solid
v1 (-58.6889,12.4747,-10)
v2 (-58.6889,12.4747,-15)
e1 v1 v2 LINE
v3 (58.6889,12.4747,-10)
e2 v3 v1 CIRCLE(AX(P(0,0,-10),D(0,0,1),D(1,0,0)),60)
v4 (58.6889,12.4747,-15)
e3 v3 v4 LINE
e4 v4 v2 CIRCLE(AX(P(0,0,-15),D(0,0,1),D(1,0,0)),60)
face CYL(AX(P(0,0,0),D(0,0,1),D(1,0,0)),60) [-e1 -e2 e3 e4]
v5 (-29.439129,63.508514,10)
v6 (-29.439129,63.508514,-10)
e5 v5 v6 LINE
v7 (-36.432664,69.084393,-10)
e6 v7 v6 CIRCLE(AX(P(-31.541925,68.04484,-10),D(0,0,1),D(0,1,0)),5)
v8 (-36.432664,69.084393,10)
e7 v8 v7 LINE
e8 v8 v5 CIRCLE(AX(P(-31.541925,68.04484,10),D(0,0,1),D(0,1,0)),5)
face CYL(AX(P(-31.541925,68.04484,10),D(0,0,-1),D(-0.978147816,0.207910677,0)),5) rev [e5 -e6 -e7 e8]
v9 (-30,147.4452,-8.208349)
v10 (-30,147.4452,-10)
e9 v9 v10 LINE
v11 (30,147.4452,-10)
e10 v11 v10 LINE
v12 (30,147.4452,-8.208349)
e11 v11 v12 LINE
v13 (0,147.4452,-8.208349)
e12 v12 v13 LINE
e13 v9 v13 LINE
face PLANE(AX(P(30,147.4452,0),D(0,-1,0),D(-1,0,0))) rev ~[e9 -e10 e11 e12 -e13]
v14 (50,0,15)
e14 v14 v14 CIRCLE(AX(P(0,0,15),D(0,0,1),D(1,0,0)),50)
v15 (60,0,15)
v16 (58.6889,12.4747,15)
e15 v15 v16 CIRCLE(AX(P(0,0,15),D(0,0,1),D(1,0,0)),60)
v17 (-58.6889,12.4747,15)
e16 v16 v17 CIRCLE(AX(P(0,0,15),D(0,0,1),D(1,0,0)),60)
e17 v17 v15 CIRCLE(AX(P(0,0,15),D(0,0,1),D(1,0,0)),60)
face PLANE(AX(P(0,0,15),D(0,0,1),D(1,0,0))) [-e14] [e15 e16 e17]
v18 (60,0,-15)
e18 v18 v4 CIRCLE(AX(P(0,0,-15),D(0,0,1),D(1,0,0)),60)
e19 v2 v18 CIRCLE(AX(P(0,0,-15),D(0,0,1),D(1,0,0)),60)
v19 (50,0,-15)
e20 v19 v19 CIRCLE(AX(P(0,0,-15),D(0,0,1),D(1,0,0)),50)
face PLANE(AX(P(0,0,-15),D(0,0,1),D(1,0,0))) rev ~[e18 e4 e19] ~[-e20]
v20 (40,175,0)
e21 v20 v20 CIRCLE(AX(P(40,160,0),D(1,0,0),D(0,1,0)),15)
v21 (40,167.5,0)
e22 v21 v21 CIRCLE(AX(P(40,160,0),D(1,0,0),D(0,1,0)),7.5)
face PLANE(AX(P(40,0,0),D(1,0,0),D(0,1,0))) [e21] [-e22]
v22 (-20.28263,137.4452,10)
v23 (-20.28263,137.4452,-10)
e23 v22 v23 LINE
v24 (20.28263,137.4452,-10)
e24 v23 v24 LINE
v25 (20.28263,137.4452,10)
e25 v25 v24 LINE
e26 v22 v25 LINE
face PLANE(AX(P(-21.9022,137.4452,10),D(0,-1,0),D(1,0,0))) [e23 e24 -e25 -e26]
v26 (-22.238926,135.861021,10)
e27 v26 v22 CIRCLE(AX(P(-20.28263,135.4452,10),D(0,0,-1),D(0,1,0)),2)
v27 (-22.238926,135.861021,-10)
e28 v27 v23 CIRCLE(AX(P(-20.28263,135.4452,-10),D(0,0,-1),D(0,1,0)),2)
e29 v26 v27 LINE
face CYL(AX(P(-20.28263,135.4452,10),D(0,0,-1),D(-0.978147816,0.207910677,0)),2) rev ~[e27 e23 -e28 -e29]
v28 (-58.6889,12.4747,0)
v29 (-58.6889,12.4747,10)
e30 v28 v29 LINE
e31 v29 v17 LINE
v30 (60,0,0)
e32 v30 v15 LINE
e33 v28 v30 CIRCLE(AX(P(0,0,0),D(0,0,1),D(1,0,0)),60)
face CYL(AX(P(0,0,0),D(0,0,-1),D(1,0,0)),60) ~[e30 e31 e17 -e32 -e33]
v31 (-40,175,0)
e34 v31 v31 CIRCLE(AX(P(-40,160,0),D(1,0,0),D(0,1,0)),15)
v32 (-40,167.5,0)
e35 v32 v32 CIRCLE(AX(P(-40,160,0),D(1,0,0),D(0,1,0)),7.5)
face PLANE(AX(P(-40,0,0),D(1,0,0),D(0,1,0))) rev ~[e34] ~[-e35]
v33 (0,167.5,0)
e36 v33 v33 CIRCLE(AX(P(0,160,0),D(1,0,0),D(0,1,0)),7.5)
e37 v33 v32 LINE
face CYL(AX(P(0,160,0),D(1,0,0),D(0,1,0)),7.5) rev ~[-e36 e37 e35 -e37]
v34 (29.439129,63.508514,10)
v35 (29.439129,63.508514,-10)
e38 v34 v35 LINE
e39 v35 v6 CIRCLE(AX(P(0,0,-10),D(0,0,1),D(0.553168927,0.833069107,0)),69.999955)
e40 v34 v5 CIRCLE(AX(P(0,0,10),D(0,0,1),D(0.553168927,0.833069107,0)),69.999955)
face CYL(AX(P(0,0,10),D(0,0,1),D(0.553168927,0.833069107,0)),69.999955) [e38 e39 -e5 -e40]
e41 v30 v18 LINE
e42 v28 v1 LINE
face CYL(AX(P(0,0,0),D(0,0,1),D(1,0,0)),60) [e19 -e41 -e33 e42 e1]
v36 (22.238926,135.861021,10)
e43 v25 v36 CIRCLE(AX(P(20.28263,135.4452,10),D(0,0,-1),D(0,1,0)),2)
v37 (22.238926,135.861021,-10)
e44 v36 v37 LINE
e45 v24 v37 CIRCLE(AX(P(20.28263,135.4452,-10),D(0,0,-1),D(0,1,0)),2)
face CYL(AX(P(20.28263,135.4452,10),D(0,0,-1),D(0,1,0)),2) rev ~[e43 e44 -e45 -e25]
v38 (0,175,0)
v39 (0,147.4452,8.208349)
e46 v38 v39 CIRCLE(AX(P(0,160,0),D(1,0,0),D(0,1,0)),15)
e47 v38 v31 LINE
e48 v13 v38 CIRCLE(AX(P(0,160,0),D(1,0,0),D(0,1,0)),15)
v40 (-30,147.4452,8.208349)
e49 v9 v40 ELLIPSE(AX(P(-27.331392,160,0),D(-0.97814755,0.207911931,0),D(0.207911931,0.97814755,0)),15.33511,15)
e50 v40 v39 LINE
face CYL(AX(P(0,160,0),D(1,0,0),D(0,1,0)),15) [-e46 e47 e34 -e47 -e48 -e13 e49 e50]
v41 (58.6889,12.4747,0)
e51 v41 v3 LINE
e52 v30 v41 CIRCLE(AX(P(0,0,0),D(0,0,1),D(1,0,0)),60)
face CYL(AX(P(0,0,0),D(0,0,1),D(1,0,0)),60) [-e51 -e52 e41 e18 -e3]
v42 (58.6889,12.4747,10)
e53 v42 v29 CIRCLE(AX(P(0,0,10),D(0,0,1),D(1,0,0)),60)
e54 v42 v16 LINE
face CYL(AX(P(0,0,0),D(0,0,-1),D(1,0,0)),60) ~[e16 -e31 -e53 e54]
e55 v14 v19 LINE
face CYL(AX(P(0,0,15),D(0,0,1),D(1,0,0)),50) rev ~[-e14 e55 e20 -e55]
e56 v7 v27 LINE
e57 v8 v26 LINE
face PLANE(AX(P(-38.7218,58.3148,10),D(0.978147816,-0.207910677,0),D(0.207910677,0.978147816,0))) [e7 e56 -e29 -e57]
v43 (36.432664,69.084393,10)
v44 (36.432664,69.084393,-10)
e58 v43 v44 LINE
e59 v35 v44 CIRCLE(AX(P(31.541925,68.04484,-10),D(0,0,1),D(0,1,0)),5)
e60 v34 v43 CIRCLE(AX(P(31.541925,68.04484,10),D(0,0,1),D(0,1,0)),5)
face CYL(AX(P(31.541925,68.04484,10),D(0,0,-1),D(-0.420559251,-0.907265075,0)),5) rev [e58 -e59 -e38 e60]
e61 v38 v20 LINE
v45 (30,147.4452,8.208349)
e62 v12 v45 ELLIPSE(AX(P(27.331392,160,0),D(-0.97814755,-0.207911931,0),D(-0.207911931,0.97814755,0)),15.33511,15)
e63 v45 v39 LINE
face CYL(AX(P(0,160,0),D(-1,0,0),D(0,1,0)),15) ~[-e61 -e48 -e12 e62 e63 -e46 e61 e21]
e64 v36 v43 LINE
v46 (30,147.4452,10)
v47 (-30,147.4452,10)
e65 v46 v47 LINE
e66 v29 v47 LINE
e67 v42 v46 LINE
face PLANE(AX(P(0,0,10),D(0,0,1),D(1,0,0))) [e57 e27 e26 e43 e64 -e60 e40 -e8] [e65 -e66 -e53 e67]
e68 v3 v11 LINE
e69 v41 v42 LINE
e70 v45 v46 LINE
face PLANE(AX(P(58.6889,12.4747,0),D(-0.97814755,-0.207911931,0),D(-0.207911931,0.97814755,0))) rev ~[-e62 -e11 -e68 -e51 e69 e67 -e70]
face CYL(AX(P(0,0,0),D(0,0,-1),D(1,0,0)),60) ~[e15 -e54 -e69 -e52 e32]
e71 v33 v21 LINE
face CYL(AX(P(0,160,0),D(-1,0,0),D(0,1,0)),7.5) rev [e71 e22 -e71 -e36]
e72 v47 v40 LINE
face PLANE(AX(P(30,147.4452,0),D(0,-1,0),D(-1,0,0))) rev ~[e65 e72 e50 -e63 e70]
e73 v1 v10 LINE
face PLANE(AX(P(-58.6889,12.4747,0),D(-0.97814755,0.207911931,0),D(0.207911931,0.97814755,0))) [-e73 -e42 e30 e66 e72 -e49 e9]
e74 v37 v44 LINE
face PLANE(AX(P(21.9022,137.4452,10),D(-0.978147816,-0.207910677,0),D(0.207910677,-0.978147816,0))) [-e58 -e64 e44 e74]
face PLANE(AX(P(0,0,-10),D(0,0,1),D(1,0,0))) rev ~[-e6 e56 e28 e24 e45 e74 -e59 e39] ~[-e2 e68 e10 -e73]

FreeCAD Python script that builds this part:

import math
import FreeCAD as App
import Part
import Sketcher
from FreeCAD import Vector
Q = App.Units.Quantity


def edges_at(feature, points):
    """Names of the edges that pass closest to the given points."""
    edges = feature.Shape.Edges
    near = lambda p: min(range(len(edges)), key=lambda i: edges[i].distToShape(Part.Vertex(*p))[0])
    return sorted({f"Edge{near(p) + 1}" for p in points})

doc = App.newDocument("Part")
body = doc.addObject("PartDesign::Body", "Body")

# Sketch on XY plane
sketch1 = doc.addObject("Sketcher::SketchObject", "Sketch")
body.addObject(sketch1)
sketch1.AttachmentSupport = (doc.XY_Plane, [""])
sketch1.MapMode = "FlatFace"
sketch1.addGeometry(Part.Circle(Vector(0, 0, 0), Vector(0, 0, 1), 60), False)
sketch1.addConstraint(Sketcher.Constraint("Coincident", 0, 3, -1, 1))
sketch1.addConstraint(Sketcher.Constraint("Diameter", 0, Q("120 mm")))
pad1 = doc.addObject("PartDesign::Pad", "Pad")
body.addObject(pad1)
pad1.Profile = sketch1
pad1.Length = 30
pad1.Midplane = True

# Sketch on XY plane
sketch2 = doc.addObject("Sketcher::SketchObject", "Sketch001")
body.addObject(sketch2)
sketch2.AttachmentSupport = (doc.XY_Plane, [""])
sketch2.MapMode = "FlatFace"
sketch2.addGeometry(Part.ArcOfCircle(Part.Circle(Vector(0, 0, 0), Vector(0, 0, 1), 60), math.radians(11.99999), math.radians(168.00001)), False)
sketch2.addGeometry(Part.LineSegment(Vector(58.6889, 12.4747, 0), Vector(30, 147.4452, 0)), False)
sketch2.addGeometry(Part.LineSegment(Vector(30, 147.4452, 0), Vector(-30, 147.4452, 0)), False)
sketch2.addGeometry(Part.LineSegment(Vector(-30, 147.4452, 0), Vector(-58.6889, 12.4747, 0)), False)
sketch2.addConstraint(Sketcher.Constraint("Tangent", 0, 1, 1, 1))
sketch2.addConstraint(Sketcher.Constraint("Coincident", 1, 2, 2, 1))
sketch2.addConstraint(Sketcher.Constraint("Coincident", 2, 2, 3, 1))
sketch2.addConstraint(Sketcher.Constraint("Tangent", 3, 2, 0, 2))
sketch2.addConstraint(Sketcher.Constraint("Horizontal", 2))
sketch2.addConstraint(Sketcher.Constraint("Coincident", 0, 3, -1, 1))
sketch2.addConstraint(Sketcher.Constraint("Horizontal", 0, 1, 3, 2))
sketch2.addConstraint(Sketcher.Constraint("Radius", 0, Q("60 mm")))
sketch2.addConstraint(Sketcher.Constraint("DistanceX", 2, 2, 2, 1, Q("60 mm")))
sketch2.addConstraint(Sketcher.Constraint("Angle", 1, Q("102 deg")))
pad2 = doc.addObject("PartDesign::Pad", "Pad001")
body.addObject(pad2)
pad2.Profile = sketch2
pad2.Length = 20
pad2.Midplane = True

# Sketch on XY plane
sketch3 = doc.addObject("Sketcher::SketchObject", "Sketch002")
body.addObject(sketch3)
sketch3.AttachmentSupport = (doc.XY_Plane, [""])
sketch3.MapMode = "FlatFace"
sketch3.AttachmentOffset = App.Placement(Vector(0, 0, 15), App.Rotation())
sketch3.addGeometry(Part.Circle(Vector(0, 0, 0), Vector(0, 0, 1), 50), False)
sketch3.addConstraint(Sketcher.Constraint("Coincident", 0, 3, -1, 1))
sketch3.addConstraint(Sketcher.Constraint("Diameter", 0, Q("100 mm")))
pocket1 = doc.addObject("PartDesign::Pocket", "Pocket")
body.addObject(pocket1)
pocket1.Profile = sketch3
pocket1.Length = 30

# Sketch on YZ plane
sketch4 = doc.addObject("Sketcher::SketchObject", "Sketch003")
body.addObject(sketch4)
sketch4.AttachmentSupport = (doc.YZ_Plane, [""])
sketch4.MapMode = "FlatFace"
sketch4.addGeometry(Part.Circle(Vector(160, 0, 0), Vector(0, 0, 1), 15), False)
sketch4.addGeometry(Part.Circle(Vector(160, 0, 0), Vector(0, 0, 1), 7.5), False)
sketch4.addConstraint(Sketcher.Constraint("Coincident", 1, 3, 0, 3))
sketch4.addConstraint(Sketcher.Constraint("PointOnObject", 0, 3, -1))
sketch4.addConstraint(Sketcher.Constraint("Diameter", 0, Q("30 mm")))
sketch4.addConstraint(Sketcher.Constraint("Diameter", 1, Q("15 mm")))
sketch4.addConstraint(Sketcher.Constraint("DistanceX", -1, 1, 0, 3, Q("160 mm")))
pad3 = doc.addObject("PartDesign::Pad", "Pad002")
body.addObject(pad3)
pad3.Profile = sketch4
pad3.Length = 80
pad3.Midplane = True

# Sketch on XY plane
sketch5 = doc.addObject("Sketcher::SketchObject", "Sketch004")
body.addObject(sketch5)
sketch5.AttachmentSupport = (doc.XY_Plane, [""])
sketch5.MapMode = "FlatFace"
sketch5.AttachmentOffset = App.Placement(Vector(0, 0, 10), App.Rotation())
sketch5.addGeometry(Part.LineSegment(Vector(21.9022, 137.4452, 0), Vector(-21.9022, 137.4452, 0)), False)
sketch5.addGeometry(Part.LineSegment(Vector(-21.9022, 137.4452, 0), Vector(-38.7218, 58.3148, 0)), False)
sketch5.addGeometry(Part.ArcOfCircle(Part.Circle(Vector(0, 0, 0), Vector(0, 0, 1), 69.999955), math.radians(56.415313), math.radians(123.584687)), False)
sketch5.addGeometry(Part.LineSegment(Vector(38.7218, 58.3148, 0), Vector(21.9022, 137.4452, 0)), False)
sketch5.addConstraint(Sketcher.Constraint("Coincident", 0, 2, 1, 1))
sketch5.addConstraint(Sketcher.Constraint("Coincident", 1, 2, 2, 2))
sketch5.addConstraint(Sketcher.Constraint("Coincident", 2, 1, 3, 1))
sketch5.addConstraint(Sketcher.Constraint("Coincident", 3, 2, 0, 1))
sketch5.addConstraint(Sketcher.Constraint("Horizontal", 0))
sketch5.addConstraint(Sketcher.Constraint("Coincident", 2, 3, -1, 1))
sketch5.addConstraint(Sketcher.Constraint("Horizontal", 1, 2, 2, 1))
sketch5.addConstraint(Sketcher.Constraint("Equal", 1, 3))
sketch5.addConstraint(Sketcher.Constraint("Radius", 2, Q("70 mm")))
sketch5.addConstraint(Sketcher.Constraint("Angle", 1, Q("-102 deg")))
sketch5.addConstraint(Sketcher.Constraint("DistanceX", 0, 2, 0, 1, Q("43.8044 mm")))
sketch5.addConstraint(Sketcher.Constraint("DistanceX", 0, 2, 2, 1, Q("60.624 mm")))
pocket2 = doc.addObject("PartDesign::Pocket", "Pocket001")
body.addObject(pocket2)
pocket2.Profile = sketch5
pocket2.Length = 20
doc.recompute()

fillet = doc.addObject("PartDesign::Fillet", "Fillet")
body.addObject(fillet)
fillet.Base = (pocket2, edges_at(pocket2, [(-38.722, 58.315, 0), (38.722, 58.315, 0)]))
fillet.Radius = 5
doc.recompute()

fillet2 = doc.addObject("PartDesign::Fillet", "Fillet001")
body.addObject(fillet2)
fillet2.Base = (fillet, edges_at(fillet, [(21.902, 137.445, 0), (-21.902, 137.445, 0)]))
fillet2.Radius = 2

doc.recompute()
